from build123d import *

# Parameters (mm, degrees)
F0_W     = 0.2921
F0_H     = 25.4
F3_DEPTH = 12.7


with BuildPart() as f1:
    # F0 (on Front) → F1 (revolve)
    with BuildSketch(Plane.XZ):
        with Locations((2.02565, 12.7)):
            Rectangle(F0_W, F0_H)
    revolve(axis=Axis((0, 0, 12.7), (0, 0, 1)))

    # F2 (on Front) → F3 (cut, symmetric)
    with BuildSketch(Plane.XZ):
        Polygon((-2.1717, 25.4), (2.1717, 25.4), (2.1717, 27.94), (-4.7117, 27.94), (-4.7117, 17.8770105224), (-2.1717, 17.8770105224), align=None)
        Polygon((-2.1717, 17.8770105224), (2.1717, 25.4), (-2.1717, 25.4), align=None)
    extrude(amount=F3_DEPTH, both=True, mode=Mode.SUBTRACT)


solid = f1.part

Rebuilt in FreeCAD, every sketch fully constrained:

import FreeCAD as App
import Part
import Sketcher

V = App.Vector
Q = App.Units.Quantity


def add_polygon(sketch, points):
    """Adds a closed chain of lines whose ends are joined by coincident constraints."""
    first, n = sketch.GeometryCount, len(points)
    for a, b in zip(points, points[1:] + points[:1]):
        sketch.addGeometry(Part.LineSegment(App.Vector(*a, 0), App.Vector(*b, 0)), False)
    for i in range(n):
        sketch.addConstraint(Sketcher.Constraint("Coincident", first + i, 2, first + (i + 1) % n, 1))

doc = App.newDocument("Part")
params = doc.addObject("Spreadsheet::Sheet", "Params")
for row, (alias, value) in enumerate([
    ("sketch1_height", "1 in"),
    ("revolution_angle", "360 deg"),
    ("sketch2_width", "0.1 in"),
    ("sketch2_width2", "0.271 in"),
    ("pocket1_length", "1 in"),
], start=1):
    params.set(f"A{row}", alias)
    params.set(f"B{row}", "=" + value)
    params.setAlias(f"B{row}", alias)

body = doc.addObject("PartDesign::Body", "Body")

sketch1 = body.newObject("Sketcher::SketchObject", "Sketch")
sketch1.AttachmentSupport = (doc.getObject("XZ_Plane"), [""])
sketch1.MapMode = "FlatFace"
add_polygon(sketch1, [(1.8796, 25.4), (1.8796, 0), (2.1717, 0), (2.1717, 25.4)])
sketch1.addConstraint([
    Sketcher.Constraint("Vertical", 0),
    Sketcher.Constraint("Horizontal", 1),
    Sketcher.Constraint("Vertical", 2),
    Sketcher.Constraint("Horizontal", 3),
    Sketcher.Constraint("PointOnObject", 0, 2, -1),
    Sketcher.Constraint("DistanceY", 0, 2, 0, 1, Q("1 in")),
    Sketcher.Constraint("DistanceX", 1, 1, 1, 2, Q("0.0115 in")),
    Sketcher.Constraint("DistanceX", -1, 1, 0, 2, Q("0.074 in")),
])
sketch1.setExpression("Constraints[9]", "Params.sketch1_height")
revolution = body.newObject("PartDesign::Revolution", "Revolution")
revolution.Profile = sketch1
revolution.ReferenceAxis = (sketch1, ["V_Axis"])
revolution.setExpression("Angle", "Params.revolution_angle")

sketch2 = body.newObject("Sketcher::SketchObject", "Sketch001")
sketch2.AttachmentSupport = (doc.getObject("XZ_Plane"), [""])
sketch2.MapMode = "FlatFace"
add_polygon(sketch2, [(2.1717, 25.4), (2.1717, 27.94), (-4.7117, 27.94), (-4.7117, 17.877011), (-2.1717, 17.877011)])
sketch2.addConstraint([
    Sketcher.Constraint("Vertical", 0),
    Sketcher.Constraint("Horizontal", 1),
    Sketcher.Constraint("Vertical", 2),
    Sketcher.Constraint("Horizontal", 3),
    Sketcher.Constraint("Equal", 3, 0),
    Sketcher.Constraint("DistanceX", 3, 1, 3, 2, Q("0.1 in")),
    Sketcher.Constraint("DistanceY", -1, 1, 4, 2, Q("1 in")),
    Sketcher.Constraint("Angle", 4, Q("60 deg")),
    Sketcher.Constraint("DistanceX", 1, 2, 1, 1, Q("0.271 in")),
    Sketcher.Constraint("DistanceX", -1, 1, 0, 2, Q("0.0855 in")),
])
sketch2.setExpression("Constraints[10]", "Params.sketch2_width")
sketch2.setExpression("Constraints[13]", "Params.sketch2_width2")
pocket1 = body.newObject("PartDesign::Pocket", "Pocket")
pocket1.Profile = sketch2
pocket1.setExpression("Length", "Params.pocket1_length")
pocket1.Midplane = True

doc.recompute()
